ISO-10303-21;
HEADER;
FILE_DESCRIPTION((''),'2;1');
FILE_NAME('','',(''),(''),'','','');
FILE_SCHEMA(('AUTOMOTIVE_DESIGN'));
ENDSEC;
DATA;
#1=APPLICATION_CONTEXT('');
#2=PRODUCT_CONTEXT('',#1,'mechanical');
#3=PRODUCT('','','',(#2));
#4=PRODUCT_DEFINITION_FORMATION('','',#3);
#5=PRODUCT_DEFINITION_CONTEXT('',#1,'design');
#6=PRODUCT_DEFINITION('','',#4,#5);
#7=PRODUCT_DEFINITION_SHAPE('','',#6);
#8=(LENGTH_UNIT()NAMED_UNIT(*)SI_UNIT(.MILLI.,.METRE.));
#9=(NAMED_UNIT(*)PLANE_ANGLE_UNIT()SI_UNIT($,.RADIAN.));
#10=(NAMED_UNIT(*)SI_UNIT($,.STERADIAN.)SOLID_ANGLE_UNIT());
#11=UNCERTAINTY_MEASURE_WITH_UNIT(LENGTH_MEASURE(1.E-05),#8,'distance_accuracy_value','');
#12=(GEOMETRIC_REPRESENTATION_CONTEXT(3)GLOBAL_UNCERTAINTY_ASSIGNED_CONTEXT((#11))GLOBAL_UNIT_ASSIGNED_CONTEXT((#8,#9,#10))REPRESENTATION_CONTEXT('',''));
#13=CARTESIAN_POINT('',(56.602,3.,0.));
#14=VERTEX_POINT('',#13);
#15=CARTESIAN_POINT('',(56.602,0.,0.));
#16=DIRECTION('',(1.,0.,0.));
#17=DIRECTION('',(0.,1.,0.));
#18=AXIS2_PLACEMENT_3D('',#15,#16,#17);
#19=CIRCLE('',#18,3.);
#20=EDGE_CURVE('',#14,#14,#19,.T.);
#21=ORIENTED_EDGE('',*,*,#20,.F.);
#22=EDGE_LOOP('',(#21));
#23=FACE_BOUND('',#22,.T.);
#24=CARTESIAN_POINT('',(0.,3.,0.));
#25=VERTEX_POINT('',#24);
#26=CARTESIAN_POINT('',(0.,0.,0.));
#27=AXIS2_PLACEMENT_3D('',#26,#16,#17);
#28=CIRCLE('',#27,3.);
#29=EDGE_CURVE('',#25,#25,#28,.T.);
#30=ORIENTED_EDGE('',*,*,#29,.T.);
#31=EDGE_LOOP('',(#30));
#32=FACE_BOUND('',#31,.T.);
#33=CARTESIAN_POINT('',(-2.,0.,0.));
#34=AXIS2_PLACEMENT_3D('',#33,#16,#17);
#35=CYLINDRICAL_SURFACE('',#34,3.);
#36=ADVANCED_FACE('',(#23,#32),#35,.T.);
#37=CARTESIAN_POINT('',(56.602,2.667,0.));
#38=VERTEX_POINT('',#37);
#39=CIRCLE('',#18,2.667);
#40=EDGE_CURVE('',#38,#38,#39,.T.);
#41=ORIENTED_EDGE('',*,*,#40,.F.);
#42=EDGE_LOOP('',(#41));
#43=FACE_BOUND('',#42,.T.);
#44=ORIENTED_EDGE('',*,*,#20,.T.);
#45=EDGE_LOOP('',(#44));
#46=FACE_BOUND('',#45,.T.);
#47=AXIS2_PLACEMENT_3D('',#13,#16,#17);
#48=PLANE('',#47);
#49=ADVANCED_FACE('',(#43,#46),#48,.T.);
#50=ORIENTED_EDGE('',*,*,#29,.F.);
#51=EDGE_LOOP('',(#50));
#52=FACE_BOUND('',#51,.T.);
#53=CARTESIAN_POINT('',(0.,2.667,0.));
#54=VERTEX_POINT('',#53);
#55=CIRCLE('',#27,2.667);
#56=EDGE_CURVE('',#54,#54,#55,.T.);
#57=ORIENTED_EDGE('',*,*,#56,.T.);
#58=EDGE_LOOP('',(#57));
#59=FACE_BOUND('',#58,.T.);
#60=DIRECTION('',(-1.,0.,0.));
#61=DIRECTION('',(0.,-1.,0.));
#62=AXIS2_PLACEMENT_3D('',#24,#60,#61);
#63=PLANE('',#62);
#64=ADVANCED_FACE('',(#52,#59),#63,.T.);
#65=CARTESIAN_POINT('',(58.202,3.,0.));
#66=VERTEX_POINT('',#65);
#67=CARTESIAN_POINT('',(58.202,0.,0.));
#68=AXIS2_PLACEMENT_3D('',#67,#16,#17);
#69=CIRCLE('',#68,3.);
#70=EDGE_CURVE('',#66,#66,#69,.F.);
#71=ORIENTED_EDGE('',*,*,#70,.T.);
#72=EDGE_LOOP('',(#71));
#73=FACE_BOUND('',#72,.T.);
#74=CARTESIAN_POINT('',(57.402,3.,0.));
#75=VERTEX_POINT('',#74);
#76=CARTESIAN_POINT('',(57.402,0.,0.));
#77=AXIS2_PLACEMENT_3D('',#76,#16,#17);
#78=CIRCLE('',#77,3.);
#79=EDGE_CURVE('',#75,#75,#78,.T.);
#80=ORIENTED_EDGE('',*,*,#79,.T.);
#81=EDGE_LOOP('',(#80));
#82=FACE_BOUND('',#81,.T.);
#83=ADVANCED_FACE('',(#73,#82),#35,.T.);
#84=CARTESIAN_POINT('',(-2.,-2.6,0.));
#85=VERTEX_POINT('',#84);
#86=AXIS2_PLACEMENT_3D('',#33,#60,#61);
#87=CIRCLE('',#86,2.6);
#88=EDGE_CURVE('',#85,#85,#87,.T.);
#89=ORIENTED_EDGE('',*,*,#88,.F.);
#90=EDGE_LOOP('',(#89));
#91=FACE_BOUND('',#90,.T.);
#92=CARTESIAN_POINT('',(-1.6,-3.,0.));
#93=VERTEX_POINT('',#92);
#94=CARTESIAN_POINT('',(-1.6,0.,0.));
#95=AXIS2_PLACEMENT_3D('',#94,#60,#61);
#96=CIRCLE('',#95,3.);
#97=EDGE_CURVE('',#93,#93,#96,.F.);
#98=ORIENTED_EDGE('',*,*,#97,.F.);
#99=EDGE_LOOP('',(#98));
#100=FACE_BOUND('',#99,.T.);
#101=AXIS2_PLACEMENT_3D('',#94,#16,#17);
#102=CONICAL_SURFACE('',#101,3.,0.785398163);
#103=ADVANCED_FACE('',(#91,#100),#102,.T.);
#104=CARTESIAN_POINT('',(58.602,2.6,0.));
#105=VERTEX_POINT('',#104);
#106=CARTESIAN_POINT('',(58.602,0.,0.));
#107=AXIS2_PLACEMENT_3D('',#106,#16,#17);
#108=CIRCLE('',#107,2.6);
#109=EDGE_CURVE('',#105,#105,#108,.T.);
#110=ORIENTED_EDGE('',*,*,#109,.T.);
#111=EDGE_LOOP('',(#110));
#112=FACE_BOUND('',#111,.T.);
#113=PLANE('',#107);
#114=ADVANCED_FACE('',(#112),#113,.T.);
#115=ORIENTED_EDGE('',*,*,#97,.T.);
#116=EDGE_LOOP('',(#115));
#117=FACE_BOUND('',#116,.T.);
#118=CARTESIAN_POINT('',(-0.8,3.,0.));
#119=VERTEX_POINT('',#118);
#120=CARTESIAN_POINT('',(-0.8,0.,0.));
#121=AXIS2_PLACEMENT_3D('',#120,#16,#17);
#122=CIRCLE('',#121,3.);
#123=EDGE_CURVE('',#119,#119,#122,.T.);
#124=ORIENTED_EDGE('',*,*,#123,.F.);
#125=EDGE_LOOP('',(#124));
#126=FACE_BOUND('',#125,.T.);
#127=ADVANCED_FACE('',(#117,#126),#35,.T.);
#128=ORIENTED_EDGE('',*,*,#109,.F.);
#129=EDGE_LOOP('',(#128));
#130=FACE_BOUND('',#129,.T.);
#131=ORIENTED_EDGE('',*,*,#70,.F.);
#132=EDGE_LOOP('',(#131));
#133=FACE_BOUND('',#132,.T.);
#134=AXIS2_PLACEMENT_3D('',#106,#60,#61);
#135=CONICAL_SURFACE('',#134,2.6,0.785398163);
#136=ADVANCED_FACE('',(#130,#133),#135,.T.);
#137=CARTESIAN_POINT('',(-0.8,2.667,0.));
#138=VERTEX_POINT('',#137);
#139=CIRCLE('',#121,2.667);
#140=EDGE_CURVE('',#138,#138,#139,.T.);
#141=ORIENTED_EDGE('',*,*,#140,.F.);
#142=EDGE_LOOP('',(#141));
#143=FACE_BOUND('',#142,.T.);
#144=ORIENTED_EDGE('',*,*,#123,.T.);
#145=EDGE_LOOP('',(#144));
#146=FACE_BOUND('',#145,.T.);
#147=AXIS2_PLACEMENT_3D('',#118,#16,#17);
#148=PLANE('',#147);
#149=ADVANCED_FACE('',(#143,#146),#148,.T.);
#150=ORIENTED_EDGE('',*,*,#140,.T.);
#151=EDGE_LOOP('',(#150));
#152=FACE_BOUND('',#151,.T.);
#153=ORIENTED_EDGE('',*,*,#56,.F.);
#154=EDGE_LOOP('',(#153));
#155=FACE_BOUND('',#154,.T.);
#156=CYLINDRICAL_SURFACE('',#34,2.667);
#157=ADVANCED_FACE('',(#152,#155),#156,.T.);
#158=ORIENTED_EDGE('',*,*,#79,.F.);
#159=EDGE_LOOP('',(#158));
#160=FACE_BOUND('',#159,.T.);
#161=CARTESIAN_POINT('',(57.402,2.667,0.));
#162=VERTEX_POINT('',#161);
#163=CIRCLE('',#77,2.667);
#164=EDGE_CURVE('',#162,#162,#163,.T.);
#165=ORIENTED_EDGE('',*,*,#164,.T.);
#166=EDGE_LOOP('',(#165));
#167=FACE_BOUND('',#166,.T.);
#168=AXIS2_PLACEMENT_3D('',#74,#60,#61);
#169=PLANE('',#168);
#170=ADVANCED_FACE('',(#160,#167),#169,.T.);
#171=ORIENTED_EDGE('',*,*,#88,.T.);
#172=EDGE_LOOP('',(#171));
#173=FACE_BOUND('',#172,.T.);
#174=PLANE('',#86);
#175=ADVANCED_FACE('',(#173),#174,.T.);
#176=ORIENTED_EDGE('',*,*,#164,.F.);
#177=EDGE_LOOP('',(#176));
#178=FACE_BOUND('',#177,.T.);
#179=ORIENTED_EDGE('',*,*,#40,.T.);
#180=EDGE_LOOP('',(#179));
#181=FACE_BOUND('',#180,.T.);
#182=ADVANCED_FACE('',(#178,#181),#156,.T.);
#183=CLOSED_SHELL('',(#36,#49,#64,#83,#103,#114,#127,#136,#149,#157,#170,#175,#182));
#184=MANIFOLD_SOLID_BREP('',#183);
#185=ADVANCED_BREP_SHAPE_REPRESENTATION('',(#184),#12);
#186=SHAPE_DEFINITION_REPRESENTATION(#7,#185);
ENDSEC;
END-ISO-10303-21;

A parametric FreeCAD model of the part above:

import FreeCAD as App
import Part
import Sketcher


def edges_at(feature, points):
    """Names of the edges that pass closest to the given points."""
    edges = feature.Shape.Edges
    near = lambda p: min(range(len(edges)), key=lambda i: edges[i].distToShape(Part.Vertex(*p))[0])
    return sorted({f"Edge{near(p) + 1}" for p in points})


def add_polygon(sketch, points):
    """Adds a closed chain of lines whose ends are joined by coincident constraints."""
    first, n = sketch.GeometryCount, len(points)
    for a, b in zip(points, points[1:] + points[:1]):
        sketch.addGeometry(Part.LineSegment(App.Vector(*a, 0), App.Vector(*b, 0)), False)
    for i in range(n):
        sketch.addConstraint(Sketcher.Constraint("Coincident", first + i, 2, first + (i + 1) % n, 1))

doc = App.newDocument("Part")
body = doc.addObject("PartDesign::Body", "Body")

sketch1 = body.newObject("Sketcher::SketchObject", "Sketch")
sketch1.AttachmentSupport = (doc.getObject("XY_Plane"), [""])
sketch1.MapMode = "FlatFace"
add_polygon(sketch1, [(-2, 0), (58.6, 0), (58.6, 3), (57.4, 3), (57.4, 2.67), (56.6, 2.67), (56.6, 3), (0, 3), (0, 2.67), (-0.8, 2.67), (-0.8, 3), (-2, 3)])
sketch1.addConstraint([
    Sketcher.Constraint("Horizontal", 0),
    Sketcher.Constraint("Vertical", 1),
    Sketcher.Constraint("Horizontal", 2),
    Sketcher.Constraint("Vertical", 3),
    Sketcher.Constraint("Horizontal", 4),
    Sketcher.Constraint("Vertical", 5),
    Sketcher.Constraint("Horizontal", 6),
    Sketcher.Constraint("Vertical", 7),
    Sketcher.Constraint("Horizontal", 8),
    Sketcher.Constraint("Vertical", 9),
    Sketcher.Constraint("Horizontal", 10),
    Sketcher.Constraint("Vertical", 11),
    Sketcher.Constraint("PointOnObject", 0, 2, -1),
    Sketcher.Constraint("PointOnObject", 6, 2, -2),
    Sketcher.Constraint("Horizontal", 2, 2, 5, 2),
    Sketcher.Constraint("Horizontal", 4, 2, 7, 2),
    Sketcher.Constraint("Horizontal", 6, 2, 9, 2),
    Sketcher.Constraint("Equal", 4, 8),
    Sketcher.Constraint("Equal", 2, 10),
    Sketcher.Constraint("DistanceY", 1, 1, 1, 2, 3.0),
    Sketcher.Constraint("DistanceX", 2, 2, 2, 1, 1.2),
    Sketcher.Constraint("DistanceX", 4, 2, 4, 1, 0.8),
    Sketcher.Constraint("DistanceX", 0, 1, 0, 2, 60.602),
    Sketcher.Constraint("DistanceY", 3, 2, 3, 1, 0.333),
])
revolution = body.newObject("PartDesign::Revolution", "Revolution")
revolution.Profile = sketch1
revolution.ReferenceAxis = (sketch1, ["H_Axis"])
revolution.Angle = 360
doc.recompute()

chamfer = body.newObject("PartDesign::Chamfer", "Chamfer")
chamfer.Base = (revolution, edges_at(revolution, [(-2, -3, 0), (58.602, -3, 0)]))
chamfer.Size = 0.4

doc.recompute()
